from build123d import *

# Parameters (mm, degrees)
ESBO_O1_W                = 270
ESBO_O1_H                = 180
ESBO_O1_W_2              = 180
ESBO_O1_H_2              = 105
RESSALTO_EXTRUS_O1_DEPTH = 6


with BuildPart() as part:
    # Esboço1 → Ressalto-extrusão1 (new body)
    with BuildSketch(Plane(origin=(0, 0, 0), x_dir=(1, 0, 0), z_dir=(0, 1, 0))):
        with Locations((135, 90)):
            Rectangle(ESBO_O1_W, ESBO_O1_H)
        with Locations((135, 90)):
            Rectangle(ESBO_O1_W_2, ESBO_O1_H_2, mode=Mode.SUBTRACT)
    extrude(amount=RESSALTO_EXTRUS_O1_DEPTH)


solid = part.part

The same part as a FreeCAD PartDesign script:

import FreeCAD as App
import Part
import Sketcher
from FreeCAD import Vector


def add_polygon(sketch, points):
    """Adds a closed chain of lines whose ends are joined by coincident constraints."""
    first, n = sketch.GeometryCount, len(points)
    for a, b in zip(points, points[1:] + points[:1]):
        sketch.addGeometry(Part.LineSegment(App.Vector(*a, 0), App.Vector(*b, 0)), False)
    for i in range(n):
        sketch.addConstraint(Sketcher.Constraint("Coincident", first + i, 2, first + (i + 1) % n, 1))

doc = App.newDocument("Part")
body = doc.addObject("PartDesign::Body", "Body")

# Sketch on XZ plane
sketch1 = body.newObject("Sketcher::SketchObject", "Sketch")
sketch1.AttachmentSupport = (doc.getObject("XZ_Plane"), [""])
sketch1.MapMode = "FlatFace"
add_polygon(sketch1, [(0, -180), (0, 0), (270, 0), (270, -180)])  # lines 0-3
add_polygon(sketch1, [(225, -38), (45, -38), (45, -142), (225, -142)])  # lines 4-7
sketch1.addConstraint(Sketcher.Constraint("Vertical", 0))
sketch1.addConstraint(Sketcher.Constraint("Horizontal", 1))
sketch1.addConstraint(Sketcher.Constraint("Vertical", 2))
sketch1.addConstraint(Sketcher.Constraint("Horizontal", 3))
sketch1.addConstraint(Sketcher.Constraint("Horizontal", 4))
sketch1.addConstraint(Sketcher.Constraint("Vertical", 5))
sketch1.addConstraint(Sketcher.Constraint("Horizontal", 6))
sketch1.addConstraint(Sketcher.Constraint("Vertical", 7))
sketch1.addConstraint(Sketcher.Constraint("Coincident", 0, 2, -1, 1))
sketch1.addConstraint(Sketcher.Constraint("Equal", 6, 0))
sketch1.addConstraint(Sketcher.Constraint("DistanceX", 1, 1, 1, 2, 270.0))
sketch1.addConstraint(Sketcher.Constraint("DistanceX", 4, 2, 4, 1, 180.0))
sketch1.addConstraint(Sketcher.Constraint("DistanceY", 5, 2, 5, 1, 105.0))
sketch1.addConstraint(Sketcher.Constraint("DistanceX", -1, 1, 4, 2, 45.0))
sketch1.addConstraint(Sketcher.Constraint("DistanceY", 4, 2, -1, 1, 37.5))
pad1 = body.newObject("PartDesign::Pad", "Pad")
pad1.Profile = sketch1
pad1.Length = 6
pad1.Reversed = True

doc.recompute()
